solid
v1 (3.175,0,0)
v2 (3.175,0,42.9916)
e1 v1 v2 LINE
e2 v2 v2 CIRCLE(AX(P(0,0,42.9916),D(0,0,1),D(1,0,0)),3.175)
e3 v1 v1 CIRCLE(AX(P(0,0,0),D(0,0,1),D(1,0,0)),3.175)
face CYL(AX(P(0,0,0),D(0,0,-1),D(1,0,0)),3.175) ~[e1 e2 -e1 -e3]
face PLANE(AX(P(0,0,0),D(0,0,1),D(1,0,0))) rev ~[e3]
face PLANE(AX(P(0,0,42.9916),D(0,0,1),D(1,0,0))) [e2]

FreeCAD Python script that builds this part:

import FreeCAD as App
import Part
import Sketcher
from FreeCAD import Vector
Q = App.Units.Quantity

doc = App.newDocument("Part")
body = doc.addObject("PartDesign::Body", "Body")

# Sketch on XY plane
sketch1 = body.newObject("Sketcher::SketchObject", "Sketch")
sketch1.AttachmentSupport = (doc.getObject("XY_Plane"), [""])
sketch1.MapMode = "FlatFace"
sketch1.addGeometry(Part.Circle(Vector(0, 0, 0), Vector(0, 0, 1), 3.2), False)
sketch1.addConstraint(Sketcher.Constraint("Coincident", 0, 3, -1, 1))
sketch1.addConstraint(Sketcher.Constraint("Diameter", 0, Q("0.25 in")))
pad1 = body.newObject("PartDesign::Pad", "Pad")
pad1.Profile = sketch1
pad1.Length = 42.9916

doc.recompute()
